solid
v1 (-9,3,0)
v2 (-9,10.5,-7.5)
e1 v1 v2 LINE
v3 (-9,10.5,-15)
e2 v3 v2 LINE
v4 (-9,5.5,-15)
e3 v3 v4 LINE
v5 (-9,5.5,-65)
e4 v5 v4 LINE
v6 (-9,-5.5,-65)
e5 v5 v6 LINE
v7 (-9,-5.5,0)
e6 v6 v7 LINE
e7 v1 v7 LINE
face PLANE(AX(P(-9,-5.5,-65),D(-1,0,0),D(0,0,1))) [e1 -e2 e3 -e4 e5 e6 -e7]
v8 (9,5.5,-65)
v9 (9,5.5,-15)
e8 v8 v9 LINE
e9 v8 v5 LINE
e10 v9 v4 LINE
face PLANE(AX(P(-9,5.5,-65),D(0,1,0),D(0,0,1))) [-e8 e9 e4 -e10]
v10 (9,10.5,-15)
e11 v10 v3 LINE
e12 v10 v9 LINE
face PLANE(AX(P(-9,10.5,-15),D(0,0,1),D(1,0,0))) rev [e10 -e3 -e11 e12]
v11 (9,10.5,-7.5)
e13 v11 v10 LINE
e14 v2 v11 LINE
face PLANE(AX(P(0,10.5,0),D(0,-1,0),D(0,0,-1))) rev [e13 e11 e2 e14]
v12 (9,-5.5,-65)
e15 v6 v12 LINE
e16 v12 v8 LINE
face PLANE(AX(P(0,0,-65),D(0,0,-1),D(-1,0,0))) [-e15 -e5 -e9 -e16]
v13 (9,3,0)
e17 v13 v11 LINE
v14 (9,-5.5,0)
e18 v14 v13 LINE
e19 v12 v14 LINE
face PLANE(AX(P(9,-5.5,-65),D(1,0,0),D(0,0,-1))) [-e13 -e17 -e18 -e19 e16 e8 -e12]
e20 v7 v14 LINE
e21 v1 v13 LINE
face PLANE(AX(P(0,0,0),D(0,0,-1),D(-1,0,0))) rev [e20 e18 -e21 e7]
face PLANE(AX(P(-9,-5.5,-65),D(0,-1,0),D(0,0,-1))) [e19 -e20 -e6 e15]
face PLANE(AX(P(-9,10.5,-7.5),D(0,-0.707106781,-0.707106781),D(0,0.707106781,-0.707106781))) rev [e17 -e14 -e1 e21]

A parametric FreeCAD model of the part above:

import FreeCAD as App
import Part
import Sketcher
from FreeCAD import Vector
Q = App.Units.Quantity


def add_polygon(sketch, points):
    """Adds a closed chain of lines whose ends are joined by coincident constraints."""
    first, n = sketch.GeometryCount, len(points)
    for a, b in zip(points, points[1:] + points[:1]):
        sketch.addGeometry(Part.LineSegment(App.Vector(*a, 0), App.Vector(*b, 0)), False)
    for i in range(n):
        sketch.addConstraint(Sketcher.Constraint("Coincident", first + i, 2, first + (i + 1) % n, 1))

doc = App.newDocument("Part")
body = doc.addObject("PartDesign::Body", "Body")

sketch1 = body.newObject("Sketcher::SketchObject", "Sketch")
sketch1.AttachmentSupport = (doc.getObject("XY_Plane"), [""])
sketch1.MapMode = "FlatFace"
add_polygon(sketch1, [(-9, 6), (-9, -6), (9, -6), (9, 6)])
sketch1.addConstraint(Sketcher.Constraint("Vertical", 0))
sketch1.addConstraint(Sketcher.Constraint("Horizontal", 1))
sketch1.addConstraint(Sketcher.Constraint("Vertical", 2))
sketch1.addConstraint(Sketcher.Constraint("Horizontal", 3))
sketch1.addConstraint(Sketcher.Constraint("Symmetric", 0, 2, 2, 2, -1, 1))
sketch1.addConstraint(Sketcher.Constraint("DistanceX", 1, 1, 1, 2, Q("18 mm")))
sketch1.addConstraint(Sketcher.Constraint("DistanceY", 0, 2, 0, 1, Q("11 mm")))
pad1 = body.newObject("PartDesign::Pad", "Pad")
pad1.Profile = sketch1
pad1.Length = 65
pad1.Reversed = True

sketch2 = body.newObject("Sketcher::SketchObject", "Sketch001")
sketch2.AttachmentSupport = (doc.getObject("XZ_Plane"), [""])
sketch2.MapMode = "FlatFace"
sketch2.AttachmentOffset = App.Placement(Vector(0, 0, -5.5), App.Rotation())
add_polygon(sketch2, [(-9, -15), (-9, 0), (9, 0), (9, -15)])
sketch2.addConstraint(Sketcher.Constraint("Vertical", 0))
sketch2.addConstraint(Sketcher.Constraint("Horizontal", 1))
sketch2.addConstraint(Sketcher.Constraint("Vertical", 2))
sketch2.addConstraint(Sketcher.Constraint("Horizontal", 3))
sketch2.addConstraint(Sketcher.Constraint("Symmetric", 0, 2, 1, 2, -1, 1))
sketch2.addConstraint(Sketcher.Constraint("DistanceX", 1, 1, 1, 2, Q("18 mm")))
sketch2.addConstraint(Sketcher.Constraint("DistanceY", 0, 1, 0, 2, Q("15 mm")))
pad2 = body.newObject("PartDesign::Pad", "Pad001")
pad2.Profile = sketch2
pad2.Length = 5
pad2.Reversed = True

sketch3 = body.newObject("Sketcher::SketchObject", "Sketch002")
sketch3.AttachmentSupport = (doc.getObject("YZ_Plane"), [""])
sketch3.MapMode = "FlatFace"
sketch3.AttachmentOffset = App.Placement(Vector(0, 0, 9), App.Rotation())
add_polygon(sketch3, [(3, 0), (10, -8), (10, 0)])
sketch3.addConstraint(Sketcher.Constraint("Vertical", 1))
sketch3.addConstraint(Sketcher.Constraint("Horizontal", 2))
sketch3.addConstraint(Sketcher.Constraint("PointOnObject", 1, 2, -1))
sketch3.addConstraint(Sketcher.Constraint("Equal", 2, 1))
sketch3.addConstraint(Sketcher.Constraint("DistanceX", 2, 2, 2, 1, Q("7.5 mm")))
sketch3.addConstraint(Sketcher.Constraint("DistanceX", -1, 1, 2, 2, Q("3 mm")))
pocket1 = body.newObject("PartDesign::Pocket", "Pocket")
pocket1.Profile = sketch3
pocket1.Type = "ThroughAll"

doc.recompute()
